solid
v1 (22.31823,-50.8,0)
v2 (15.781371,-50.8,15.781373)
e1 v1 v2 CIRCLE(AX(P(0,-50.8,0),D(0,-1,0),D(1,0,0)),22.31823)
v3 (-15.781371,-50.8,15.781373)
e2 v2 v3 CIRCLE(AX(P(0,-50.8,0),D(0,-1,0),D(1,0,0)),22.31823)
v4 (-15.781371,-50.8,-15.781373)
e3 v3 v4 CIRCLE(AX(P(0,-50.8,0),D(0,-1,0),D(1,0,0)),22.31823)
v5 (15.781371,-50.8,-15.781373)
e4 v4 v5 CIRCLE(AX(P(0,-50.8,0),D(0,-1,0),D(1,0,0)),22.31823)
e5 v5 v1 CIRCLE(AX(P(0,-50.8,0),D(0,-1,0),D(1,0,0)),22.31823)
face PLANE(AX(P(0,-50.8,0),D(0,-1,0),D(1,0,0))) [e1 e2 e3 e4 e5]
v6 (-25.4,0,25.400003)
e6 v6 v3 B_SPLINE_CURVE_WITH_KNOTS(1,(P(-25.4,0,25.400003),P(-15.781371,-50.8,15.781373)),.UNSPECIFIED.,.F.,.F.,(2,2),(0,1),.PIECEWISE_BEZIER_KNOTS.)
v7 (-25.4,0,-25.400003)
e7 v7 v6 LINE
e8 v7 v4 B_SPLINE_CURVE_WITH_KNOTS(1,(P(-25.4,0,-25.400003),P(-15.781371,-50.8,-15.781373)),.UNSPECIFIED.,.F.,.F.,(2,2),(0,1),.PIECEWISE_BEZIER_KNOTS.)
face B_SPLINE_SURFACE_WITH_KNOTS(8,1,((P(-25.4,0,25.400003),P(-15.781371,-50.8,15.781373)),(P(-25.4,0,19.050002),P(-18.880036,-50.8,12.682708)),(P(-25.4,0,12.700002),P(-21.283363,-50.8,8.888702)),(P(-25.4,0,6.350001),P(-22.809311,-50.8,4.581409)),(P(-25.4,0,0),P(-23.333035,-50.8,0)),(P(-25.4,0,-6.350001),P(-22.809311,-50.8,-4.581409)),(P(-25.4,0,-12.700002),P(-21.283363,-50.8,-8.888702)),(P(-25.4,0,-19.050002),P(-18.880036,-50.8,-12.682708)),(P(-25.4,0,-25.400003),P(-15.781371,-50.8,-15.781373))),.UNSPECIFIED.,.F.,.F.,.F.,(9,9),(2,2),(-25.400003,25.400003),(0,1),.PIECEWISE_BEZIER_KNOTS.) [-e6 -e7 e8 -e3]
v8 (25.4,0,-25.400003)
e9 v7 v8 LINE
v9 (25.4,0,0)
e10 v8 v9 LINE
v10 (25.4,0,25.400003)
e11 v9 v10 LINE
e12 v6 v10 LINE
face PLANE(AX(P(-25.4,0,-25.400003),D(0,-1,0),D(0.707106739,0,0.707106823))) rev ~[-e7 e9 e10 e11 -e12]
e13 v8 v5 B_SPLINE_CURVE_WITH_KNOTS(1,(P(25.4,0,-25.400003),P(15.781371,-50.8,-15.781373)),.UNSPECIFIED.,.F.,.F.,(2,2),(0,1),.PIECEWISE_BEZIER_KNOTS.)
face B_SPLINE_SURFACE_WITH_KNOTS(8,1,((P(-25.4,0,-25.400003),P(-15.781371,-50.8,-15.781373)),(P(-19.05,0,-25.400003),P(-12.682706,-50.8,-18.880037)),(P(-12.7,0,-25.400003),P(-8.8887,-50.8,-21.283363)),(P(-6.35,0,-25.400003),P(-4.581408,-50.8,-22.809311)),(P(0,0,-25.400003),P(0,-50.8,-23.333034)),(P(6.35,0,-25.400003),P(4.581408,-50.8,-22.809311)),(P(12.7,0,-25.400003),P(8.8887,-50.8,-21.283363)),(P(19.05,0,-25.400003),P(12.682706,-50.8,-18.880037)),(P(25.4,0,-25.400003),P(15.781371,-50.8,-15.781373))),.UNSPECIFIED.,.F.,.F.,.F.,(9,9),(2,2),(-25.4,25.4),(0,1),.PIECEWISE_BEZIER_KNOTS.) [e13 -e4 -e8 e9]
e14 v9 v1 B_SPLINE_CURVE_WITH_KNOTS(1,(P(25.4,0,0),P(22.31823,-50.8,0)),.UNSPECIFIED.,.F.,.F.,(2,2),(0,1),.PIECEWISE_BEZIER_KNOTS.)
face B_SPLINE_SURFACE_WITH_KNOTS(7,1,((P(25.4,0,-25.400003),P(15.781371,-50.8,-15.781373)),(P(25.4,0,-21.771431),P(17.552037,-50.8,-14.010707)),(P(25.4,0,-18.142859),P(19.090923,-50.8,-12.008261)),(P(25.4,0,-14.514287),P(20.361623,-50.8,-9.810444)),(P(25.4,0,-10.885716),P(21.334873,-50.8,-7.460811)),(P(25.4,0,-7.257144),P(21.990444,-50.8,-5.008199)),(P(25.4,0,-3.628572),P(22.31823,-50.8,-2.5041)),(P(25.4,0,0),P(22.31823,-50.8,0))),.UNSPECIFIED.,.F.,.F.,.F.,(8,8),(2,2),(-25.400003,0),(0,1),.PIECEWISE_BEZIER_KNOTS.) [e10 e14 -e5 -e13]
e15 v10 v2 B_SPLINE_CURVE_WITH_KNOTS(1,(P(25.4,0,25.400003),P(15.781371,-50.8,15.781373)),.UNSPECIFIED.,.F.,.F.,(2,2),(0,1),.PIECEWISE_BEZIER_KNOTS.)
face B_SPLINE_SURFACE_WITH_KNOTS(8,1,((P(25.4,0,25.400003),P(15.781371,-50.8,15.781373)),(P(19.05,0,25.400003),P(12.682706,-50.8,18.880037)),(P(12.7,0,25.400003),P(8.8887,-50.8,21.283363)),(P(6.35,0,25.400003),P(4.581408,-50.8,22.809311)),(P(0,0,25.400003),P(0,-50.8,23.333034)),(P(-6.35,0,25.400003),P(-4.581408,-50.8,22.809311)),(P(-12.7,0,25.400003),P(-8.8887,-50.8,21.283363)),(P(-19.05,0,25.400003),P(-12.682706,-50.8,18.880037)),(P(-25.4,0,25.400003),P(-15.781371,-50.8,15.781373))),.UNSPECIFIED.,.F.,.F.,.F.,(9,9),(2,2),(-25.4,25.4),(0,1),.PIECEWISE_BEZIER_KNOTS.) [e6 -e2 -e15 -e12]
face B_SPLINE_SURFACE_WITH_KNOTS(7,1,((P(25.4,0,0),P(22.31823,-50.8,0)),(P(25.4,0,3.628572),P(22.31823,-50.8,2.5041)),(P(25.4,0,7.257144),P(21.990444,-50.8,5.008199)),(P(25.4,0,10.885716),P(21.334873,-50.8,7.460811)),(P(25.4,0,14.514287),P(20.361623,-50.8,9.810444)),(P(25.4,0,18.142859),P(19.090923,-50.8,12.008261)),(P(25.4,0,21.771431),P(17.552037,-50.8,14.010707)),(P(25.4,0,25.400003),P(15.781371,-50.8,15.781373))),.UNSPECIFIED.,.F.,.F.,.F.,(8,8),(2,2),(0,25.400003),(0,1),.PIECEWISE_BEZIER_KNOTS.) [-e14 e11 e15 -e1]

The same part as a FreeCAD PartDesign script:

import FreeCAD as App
import Part
import Sketcher
from FreeCAD import Vector
Q = App.Units.Quantity


def add_polygon(sketch, points):
    """Adds a closed chain of lines whose ends are joined by coincident constraints."""
    first, n = sketch.GeometryCount, len(points)
    for a, b in zip(points, points[1:] + points[:1]):
        sketch.addGeometry(Part.LineSegment(App.Vector(*a, 0), App.Vector(*b, 0)), False)
    for i in range(n):
        sketch.addConstraint(Sketcher.Constraint("Coincident", first + i, 2, first + (i + 1) % n, 1))

doc = App.newDocument("Part")
body = doc.addObject("PartDesign::Body", "Body")

# Sketch on XZ plane
sketch1 = body.newObject("Sketcher::SketchObject", "Sketch")
sketch1.AttachmentSupport = (doc.getObject("XZ_Plane"), [""])
sketch1.MapMode = "FlatFace"
add_polygon(sketch1, [(-25.4, 25.400003), (-25.4, -25.400003), (25.4, -25.400003), (25.4, 25.400003)])  # lines 0-3
sketch1.addConstraint([
    Sketcher.Constraint("Vertical", 0),
    Sketcher.Constraint("Horizontal", 1),
    Sketcher.Constraint("Vertical", 2),
    Sketcher.Constraint("Horizontal", 3),
    Sketcher.Constraint("Symmetric", 0, 2, 2, 2, -1, 1),
    Sketcher.Constraint("DistanceX", 1, 1, 1, 2, Q("2 in")),
    Sketcher.Constraint("DistanceY", 0, 2, -1, 1, Q("1.0000001 in")),
])

# Sketch on XZ plane
sketch2 = body.newObject("Sketcher::SketchObject", "Sketch001")
sketch2.AttachmentSupport = (doc.getObject("XZ_Plane"), [""])
sketch2.MapMode = "FlatFace"
sketch2.AttachmentOffset = App.Placement(Vector(0, 0, 2 * 25.4), App.Rotation())
sketch2.addGeometry(Part.Circle(Vector(0, 0, 0), Vector(0, 0, 1), 22.31823), False)
sketch2.addConstraint([
    Sketcher.Constraint("Coincident", 0, 3, -1, 1),
    Sketcher.Constraint("Diameter", 0, 44.63646),
])

additiveloft = body.newObject("PartDesign::AdditiveLoft", "AdditiveLoft")
additiveloft.Profile = sketch1
additiveloft.Sections = [sketch2]

doc.recompute()
